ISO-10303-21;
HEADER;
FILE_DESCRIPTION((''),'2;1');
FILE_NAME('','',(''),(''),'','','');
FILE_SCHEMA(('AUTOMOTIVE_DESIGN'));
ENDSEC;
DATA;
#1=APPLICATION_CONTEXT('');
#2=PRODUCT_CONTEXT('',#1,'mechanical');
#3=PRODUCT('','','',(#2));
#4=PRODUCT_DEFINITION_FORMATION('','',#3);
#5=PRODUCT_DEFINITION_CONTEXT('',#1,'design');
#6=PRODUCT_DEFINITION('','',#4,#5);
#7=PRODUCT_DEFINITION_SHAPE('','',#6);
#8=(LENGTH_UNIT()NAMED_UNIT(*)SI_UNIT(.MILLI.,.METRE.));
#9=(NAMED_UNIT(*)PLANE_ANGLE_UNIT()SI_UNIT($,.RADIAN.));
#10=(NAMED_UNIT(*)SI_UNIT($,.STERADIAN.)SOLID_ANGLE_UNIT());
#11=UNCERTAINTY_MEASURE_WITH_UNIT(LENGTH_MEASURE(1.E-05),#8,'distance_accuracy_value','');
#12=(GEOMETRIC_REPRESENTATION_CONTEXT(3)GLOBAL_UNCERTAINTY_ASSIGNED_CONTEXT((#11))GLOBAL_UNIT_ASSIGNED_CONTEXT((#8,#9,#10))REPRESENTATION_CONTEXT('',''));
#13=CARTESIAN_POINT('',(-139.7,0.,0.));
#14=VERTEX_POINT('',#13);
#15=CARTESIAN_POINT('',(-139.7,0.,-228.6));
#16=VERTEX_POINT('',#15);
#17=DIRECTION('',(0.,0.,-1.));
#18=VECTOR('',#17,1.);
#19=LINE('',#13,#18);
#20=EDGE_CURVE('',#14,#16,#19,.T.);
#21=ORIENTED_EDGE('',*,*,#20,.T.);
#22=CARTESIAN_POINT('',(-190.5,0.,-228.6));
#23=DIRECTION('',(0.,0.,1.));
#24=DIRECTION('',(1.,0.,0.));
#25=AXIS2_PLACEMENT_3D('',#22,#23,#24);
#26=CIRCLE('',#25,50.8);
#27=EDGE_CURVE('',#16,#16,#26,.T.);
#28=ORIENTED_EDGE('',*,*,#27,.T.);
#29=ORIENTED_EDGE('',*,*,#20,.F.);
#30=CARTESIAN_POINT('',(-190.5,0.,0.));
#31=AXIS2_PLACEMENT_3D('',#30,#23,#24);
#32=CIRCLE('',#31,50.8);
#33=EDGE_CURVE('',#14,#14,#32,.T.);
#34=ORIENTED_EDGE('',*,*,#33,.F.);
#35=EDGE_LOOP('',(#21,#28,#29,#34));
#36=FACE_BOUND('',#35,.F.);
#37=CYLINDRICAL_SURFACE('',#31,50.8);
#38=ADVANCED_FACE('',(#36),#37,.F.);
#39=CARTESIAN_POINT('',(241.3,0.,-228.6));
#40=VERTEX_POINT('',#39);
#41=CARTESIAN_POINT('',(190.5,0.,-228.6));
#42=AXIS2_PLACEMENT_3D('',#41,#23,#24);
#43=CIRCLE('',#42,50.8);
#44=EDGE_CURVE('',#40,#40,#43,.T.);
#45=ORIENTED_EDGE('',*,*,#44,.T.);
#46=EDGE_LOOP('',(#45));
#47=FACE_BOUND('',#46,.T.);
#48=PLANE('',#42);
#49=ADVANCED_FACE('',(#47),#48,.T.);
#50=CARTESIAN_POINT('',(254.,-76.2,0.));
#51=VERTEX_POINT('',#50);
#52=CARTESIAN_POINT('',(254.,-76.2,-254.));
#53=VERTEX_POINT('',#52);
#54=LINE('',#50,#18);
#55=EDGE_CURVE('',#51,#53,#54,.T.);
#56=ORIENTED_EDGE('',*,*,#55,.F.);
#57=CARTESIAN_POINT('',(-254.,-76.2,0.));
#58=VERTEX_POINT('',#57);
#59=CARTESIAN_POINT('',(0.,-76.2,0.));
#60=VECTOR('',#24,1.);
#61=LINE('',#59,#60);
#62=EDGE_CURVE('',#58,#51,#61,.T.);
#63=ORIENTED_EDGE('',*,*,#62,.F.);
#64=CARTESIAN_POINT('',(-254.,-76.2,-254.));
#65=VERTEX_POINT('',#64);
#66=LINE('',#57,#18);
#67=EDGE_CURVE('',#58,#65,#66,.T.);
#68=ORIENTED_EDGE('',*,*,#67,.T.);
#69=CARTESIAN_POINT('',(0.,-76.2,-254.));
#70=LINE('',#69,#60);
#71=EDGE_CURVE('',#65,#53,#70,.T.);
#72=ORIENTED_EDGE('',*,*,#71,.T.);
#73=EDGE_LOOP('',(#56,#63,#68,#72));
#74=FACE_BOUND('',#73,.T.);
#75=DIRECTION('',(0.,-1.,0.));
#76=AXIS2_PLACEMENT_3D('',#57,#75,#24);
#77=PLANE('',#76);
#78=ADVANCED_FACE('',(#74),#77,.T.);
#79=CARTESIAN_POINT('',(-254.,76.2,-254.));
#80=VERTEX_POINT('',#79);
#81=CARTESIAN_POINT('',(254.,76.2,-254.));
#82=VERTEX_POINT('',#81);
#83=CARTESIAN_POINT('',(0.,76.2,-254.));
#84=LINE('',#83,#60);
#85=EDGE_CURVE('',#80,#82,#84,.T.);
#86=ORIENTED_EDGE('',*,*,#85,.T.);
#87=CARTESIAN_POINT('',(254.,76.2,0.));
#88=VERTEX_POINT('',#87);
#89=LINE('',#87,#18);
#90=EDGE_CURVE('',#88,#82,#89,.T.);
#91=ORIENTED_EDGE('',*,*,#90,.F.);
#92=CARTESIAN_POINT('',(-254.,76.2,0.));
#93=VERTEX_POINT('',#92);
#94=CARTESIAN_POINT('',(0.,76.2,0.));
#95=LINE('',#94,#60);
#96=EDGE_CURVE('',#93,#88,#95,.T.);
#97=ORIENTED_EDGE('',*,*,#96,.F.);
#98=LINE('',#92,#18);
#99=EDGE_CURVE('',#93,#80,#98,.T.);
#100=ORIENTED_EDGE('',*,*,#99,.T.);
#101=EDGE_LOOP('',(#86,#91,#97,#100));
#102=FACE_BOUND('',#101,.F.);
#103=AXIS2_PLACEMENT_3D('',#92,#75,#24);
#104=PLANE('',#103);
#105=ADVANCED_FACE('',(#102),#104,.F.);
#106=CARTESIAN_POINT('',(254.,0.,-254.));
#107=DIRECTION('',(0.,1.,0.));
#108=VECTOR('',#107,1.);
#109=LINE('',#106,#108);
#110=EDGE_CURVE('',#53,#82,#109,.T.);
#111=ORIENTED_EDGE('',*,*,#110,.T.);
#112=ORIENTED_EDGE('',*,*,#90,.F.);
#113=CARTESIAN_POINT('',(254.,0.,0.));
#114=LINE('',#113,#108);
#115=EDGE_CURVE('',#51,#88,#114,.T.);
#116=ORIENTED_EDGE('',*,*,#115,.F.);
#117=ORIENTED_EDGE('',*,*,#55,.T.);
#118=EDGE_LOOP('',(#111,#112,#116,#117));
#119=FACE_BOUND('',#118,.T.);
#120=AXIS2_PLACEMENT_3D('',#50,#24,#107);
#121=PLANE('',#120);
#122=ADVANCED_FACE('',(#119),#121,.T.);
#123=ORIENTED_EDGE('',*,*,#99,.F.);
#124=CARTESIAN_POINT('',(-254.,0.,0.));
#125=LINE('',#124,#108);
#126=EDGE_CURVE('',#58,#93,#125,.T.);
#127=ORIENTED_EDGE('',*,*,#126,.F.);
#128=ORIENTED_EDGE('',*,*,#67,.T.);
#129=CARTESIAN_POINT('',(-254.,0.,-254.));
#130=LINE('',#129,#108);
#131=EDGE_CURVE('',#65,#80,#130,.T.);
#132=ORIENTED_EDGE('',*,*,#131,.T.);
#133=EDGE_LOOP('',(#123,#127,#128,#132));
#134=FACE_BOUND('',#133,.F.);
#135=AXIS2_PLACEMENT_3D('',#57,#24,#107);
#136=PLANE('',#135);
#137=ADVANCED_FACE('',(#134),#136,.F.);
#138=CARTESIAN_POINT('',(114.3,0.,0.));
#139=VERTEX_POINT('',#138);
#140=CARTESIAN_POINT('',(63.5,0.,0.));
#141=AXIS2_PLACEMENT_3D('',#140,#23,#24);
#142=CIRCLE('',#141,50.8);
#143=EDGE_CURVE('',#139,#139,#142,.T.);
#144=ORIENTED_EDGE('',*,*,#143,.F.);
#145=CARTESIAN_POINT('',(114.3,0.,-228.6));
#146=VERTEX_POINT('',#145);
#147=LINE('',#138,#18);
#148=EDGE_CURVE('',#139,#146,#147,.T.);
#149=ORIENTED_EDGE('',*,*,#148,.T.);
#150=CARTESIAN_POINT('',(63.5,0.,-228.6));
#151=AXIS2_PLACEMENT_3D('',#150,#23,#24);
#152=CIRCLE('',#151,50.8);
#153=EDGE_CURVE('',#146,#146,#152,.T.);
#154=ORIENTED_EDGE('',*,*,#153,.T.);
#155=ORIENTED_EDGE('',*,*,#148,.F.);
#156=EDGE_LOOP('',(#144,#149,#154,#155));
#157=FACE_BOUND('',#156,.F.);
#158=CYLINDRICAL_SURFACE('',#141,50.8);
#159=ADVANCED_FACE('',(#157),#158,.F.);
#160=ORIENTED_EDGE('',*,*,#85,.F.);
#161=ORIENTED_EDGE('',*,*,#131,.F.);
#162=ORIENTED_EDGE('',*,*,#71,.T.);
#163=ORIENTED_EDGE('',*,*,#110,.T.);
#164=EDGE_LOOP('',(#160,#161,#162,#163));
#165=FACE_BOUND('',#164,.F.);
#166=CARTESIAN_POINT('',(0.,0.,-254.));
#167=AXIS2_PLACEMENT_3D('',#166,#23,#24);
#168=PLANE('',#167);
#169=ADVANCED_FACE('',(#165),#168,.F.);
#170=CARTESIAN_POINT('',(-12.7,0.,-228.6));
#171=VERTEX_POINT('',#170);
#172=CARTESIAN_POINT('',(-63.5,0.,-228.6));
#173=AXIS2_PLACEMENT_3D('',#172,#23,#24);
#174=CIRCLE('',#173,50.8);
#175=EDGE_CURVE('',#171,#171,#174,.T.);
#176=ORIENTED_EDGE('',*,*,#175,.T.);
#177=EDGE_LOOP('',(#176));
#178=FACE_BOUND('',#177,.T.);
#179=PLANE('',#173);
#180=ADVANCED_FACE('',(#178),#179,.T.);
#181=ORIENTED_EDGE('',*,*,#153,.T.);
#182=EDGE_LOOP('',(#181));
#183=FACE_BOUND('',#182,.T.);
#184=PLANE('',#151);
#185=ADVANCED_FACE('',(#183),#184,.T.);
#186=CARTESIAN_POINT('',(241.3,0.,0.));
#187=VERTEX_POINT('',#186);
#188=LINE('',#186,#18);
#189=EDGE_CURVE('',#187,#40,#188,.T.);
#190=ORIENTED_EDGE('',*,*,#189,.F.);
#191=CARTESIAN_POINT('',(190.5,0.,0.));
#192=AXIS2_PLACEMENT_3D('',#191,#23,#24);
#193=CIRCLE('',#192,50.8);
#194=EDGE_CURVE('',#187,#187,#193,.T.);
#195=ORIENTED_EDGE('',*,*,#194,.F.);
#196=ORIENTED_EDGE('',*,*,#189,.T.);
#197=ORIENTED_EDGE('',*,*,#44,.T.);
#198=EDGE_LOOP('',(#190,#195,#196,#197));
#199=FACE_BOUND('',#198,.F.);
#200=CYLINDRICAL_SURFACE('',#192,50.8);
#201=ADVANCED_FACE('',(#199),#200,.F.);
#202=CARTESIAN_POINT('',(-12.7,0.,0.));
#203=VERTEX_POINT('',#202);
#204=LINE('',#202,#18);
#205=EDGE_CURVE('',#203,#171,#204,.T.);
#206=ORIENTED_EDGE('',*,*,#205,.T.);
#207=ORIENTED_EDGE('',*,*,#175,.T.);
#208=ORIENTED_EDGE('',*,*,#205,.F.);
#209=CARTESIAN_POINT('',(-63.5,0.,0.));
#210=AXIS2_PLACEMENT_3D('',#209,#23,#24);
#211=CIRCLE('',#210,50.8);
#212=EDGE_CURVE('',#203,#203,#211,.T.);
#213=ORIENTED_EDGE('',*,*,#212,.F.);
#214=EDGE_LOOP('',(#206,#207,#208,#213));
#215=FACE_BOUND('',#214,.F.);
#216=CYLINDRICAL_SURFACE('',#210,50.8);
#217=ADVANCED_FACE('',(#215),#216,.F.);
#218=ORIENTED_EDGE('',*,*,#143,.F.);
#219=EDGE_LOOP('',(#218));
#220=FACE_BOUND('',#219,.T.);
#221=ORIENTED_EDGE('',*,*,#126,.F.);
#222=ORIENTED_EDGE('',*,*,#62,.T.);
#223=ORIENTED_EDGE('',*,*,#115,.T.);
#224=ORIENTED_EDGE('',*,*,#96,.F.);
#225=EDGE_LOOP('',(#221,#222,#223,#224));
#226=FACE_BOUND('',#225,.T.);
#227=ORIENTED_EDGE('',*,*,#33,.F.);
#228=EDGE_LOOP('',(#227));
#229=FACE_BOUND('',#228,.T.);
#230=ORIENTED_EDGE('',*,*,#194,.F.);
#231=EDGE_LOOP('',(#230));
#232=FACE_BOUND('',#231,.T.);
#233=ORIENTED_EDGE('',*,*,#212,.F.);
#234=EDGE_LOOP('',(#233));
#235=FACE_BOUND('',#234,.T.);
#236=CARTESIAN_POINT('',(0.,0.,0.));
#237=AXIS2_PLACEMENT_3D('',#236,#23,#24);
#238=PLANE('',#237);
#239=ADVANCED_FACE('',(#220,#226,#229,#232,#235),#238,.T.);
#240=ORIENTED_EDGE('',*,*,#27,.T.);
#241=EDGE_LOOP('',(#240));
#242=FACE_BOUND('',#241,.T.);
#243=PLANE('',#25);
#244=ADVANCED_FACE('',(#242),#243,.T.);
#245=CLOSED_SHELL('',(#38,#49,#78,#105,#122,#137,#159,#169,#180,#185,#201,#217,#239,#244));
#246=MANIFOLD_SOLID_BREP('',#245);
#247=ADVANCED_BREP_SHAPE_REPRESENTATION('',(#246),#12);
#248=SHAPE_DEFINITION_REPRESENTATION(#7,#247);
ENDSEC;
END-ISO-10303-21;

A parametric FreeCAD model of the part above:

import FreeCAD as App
import Part
import Sketcher

V = App.Vector
Q = App.Units.Quantity


def add_polygon(sketch, points):
    """Adds a closed chain of lines whose ends are joined by coincident constraints."""
    first, n = sketch.GeometryCount, len(points)
    for a, b in zip(points, points[1:] + points[:1]):
        sketch.addGeometry(Part.LineSegment(App.Vector(*a, 0), App.Vector(*b, 0)), False)
    for i in range(n):
        sketch.addConstraint(Sketcher.Constraint("Coincident", first + i, 2, first + (i + 1) % n, 1))

doc = App.newDocument("Part")
params = doc.addObject("Spreadsheet::Sheet", "Params")
for row, (alias, value) in enumerate([
    ("sketch1_width", "20 in"),
    ("sketch1_height", "6 in"),
    ("pad1_length", "10 in"),
    ("sketch2_diameter", "4 in"),
    ("pocket1_length", "9 in"),
], start=1):
    params.set(f"A{row}", alias)
    params.set(f"B{row}", "=" + value)
    params.setAlias(f"B{row}", alias)

body = doc.addObject("PartDesign::Body", "Body")

sketch1 = body.newObject("Sketcher::SketchObject", "Sketch")
sketch1.AttachmentSupport = (doc.getObject("XY_Plane"), [""])
sketch1.MapMode = "FlatFace"
add_polygon(sketch1, [(-254, 76), (-254, -76), (254, -76), (254, 76)])
sketch1.addConstraint(Sketcher.Constraint("Vertical", 0))
sketch1.addConstraint(Sketcher.Constraint("Horizontal", 1))
sketch1.addConstraint(Sketcher.Constraint("Vertical", 2))
sketch1.addConstraint(Sketcher.Constraint("Horizontal", 3))
sketch1.addConstraint(Sketcher.Constraint("Symmetric", 0, 2, 2, 2, -1, 1))
sketch1.addConstraint(Sketcher.Constraint("DistanceX", 1, 1, 1, 2, Q("20 in")))
sketch1.addConstraint(Sketcher.Constraint("DistanceY", 0, 2, 0, 1, Q("6 in")))
sketch1.setExpression("Constraints[9]", "Params.sketch1_width")
sketch1.setExpression("Constraints[10]", "Params.sketch1_height")
pad1 = body.newObject("PartDesign::Pad", "Pad")
pad1.Profile = sketch1
pad1.setExpression("Length", "Params.pad1_length")
pad1.Reversed = True

sketch2 = body.newObject("Sketcher::SketchObject", "Sketch001")
sketch2.AttachmentSupport = (doc.getObject("XY_Plane"), [""])
sketch2.MapMode = "FlatFace"
sketch2.addGeometry(Part.Circle(V(-64, 0, 0), V(0, 0, 1), 51), False)
sketch2.addGeometry(Part.Circle(V(64, 0, 0), V(0, 0, 1), 51), False)
sketch2.addGeometry(Part.Circle(V(-190, 0, 0), V(0, 0, 1), 51), False)
sketch2.addGeometry(Part.Circle(V(190, 0, 0), V(0, 0, 1), 51), False)
sketch2.addConstraint(Sketcher.Constraint("Equal", 0, 1))
sketch2.addConstraint(Sketcher.Constraint("Equal", 1, 2))
sketch2.addConstraint(Sketcher.Constraint("Equal", 2, 3))
sketch2.addConstraint(Sketcher.Constraint("Symmetric", 0, 3, 1, 3, -1, 1))
sketch2.addConstraint(Sketcher.Constraint("Symmetric", 2, 3, 3, 3, -1, 1))
sketch2.addConstraint(Sketcher.Constraint("PointOnObject", 0, 3, -1))
sketch2.addConstraint(Sketcher.Constraint("PointOnObject", 2, 3, -1))
sketch2.addConstraint(Sketcher.Constraint("Diameter", 0, Q("4 in")))
sketch2.addConstraint(Sketcher.Constraint("DistanceX", 0, 3, 1, 3, Q("5 in")))
sketch2.addConstraint(Sketcher.Constraint("DistanceX", 2, 3, 0, 3, Q("5 in")))
sketch2.setExpression("Constraints[7]", "Params.sketch2_diameter")
pocket1 = body.newObject("PartDesign::Pocket", "Pocket")
pocket1.Profile = sketch2
pocket1.setExpression("Length", "Params.pocket1_length")

doc.recompute()
